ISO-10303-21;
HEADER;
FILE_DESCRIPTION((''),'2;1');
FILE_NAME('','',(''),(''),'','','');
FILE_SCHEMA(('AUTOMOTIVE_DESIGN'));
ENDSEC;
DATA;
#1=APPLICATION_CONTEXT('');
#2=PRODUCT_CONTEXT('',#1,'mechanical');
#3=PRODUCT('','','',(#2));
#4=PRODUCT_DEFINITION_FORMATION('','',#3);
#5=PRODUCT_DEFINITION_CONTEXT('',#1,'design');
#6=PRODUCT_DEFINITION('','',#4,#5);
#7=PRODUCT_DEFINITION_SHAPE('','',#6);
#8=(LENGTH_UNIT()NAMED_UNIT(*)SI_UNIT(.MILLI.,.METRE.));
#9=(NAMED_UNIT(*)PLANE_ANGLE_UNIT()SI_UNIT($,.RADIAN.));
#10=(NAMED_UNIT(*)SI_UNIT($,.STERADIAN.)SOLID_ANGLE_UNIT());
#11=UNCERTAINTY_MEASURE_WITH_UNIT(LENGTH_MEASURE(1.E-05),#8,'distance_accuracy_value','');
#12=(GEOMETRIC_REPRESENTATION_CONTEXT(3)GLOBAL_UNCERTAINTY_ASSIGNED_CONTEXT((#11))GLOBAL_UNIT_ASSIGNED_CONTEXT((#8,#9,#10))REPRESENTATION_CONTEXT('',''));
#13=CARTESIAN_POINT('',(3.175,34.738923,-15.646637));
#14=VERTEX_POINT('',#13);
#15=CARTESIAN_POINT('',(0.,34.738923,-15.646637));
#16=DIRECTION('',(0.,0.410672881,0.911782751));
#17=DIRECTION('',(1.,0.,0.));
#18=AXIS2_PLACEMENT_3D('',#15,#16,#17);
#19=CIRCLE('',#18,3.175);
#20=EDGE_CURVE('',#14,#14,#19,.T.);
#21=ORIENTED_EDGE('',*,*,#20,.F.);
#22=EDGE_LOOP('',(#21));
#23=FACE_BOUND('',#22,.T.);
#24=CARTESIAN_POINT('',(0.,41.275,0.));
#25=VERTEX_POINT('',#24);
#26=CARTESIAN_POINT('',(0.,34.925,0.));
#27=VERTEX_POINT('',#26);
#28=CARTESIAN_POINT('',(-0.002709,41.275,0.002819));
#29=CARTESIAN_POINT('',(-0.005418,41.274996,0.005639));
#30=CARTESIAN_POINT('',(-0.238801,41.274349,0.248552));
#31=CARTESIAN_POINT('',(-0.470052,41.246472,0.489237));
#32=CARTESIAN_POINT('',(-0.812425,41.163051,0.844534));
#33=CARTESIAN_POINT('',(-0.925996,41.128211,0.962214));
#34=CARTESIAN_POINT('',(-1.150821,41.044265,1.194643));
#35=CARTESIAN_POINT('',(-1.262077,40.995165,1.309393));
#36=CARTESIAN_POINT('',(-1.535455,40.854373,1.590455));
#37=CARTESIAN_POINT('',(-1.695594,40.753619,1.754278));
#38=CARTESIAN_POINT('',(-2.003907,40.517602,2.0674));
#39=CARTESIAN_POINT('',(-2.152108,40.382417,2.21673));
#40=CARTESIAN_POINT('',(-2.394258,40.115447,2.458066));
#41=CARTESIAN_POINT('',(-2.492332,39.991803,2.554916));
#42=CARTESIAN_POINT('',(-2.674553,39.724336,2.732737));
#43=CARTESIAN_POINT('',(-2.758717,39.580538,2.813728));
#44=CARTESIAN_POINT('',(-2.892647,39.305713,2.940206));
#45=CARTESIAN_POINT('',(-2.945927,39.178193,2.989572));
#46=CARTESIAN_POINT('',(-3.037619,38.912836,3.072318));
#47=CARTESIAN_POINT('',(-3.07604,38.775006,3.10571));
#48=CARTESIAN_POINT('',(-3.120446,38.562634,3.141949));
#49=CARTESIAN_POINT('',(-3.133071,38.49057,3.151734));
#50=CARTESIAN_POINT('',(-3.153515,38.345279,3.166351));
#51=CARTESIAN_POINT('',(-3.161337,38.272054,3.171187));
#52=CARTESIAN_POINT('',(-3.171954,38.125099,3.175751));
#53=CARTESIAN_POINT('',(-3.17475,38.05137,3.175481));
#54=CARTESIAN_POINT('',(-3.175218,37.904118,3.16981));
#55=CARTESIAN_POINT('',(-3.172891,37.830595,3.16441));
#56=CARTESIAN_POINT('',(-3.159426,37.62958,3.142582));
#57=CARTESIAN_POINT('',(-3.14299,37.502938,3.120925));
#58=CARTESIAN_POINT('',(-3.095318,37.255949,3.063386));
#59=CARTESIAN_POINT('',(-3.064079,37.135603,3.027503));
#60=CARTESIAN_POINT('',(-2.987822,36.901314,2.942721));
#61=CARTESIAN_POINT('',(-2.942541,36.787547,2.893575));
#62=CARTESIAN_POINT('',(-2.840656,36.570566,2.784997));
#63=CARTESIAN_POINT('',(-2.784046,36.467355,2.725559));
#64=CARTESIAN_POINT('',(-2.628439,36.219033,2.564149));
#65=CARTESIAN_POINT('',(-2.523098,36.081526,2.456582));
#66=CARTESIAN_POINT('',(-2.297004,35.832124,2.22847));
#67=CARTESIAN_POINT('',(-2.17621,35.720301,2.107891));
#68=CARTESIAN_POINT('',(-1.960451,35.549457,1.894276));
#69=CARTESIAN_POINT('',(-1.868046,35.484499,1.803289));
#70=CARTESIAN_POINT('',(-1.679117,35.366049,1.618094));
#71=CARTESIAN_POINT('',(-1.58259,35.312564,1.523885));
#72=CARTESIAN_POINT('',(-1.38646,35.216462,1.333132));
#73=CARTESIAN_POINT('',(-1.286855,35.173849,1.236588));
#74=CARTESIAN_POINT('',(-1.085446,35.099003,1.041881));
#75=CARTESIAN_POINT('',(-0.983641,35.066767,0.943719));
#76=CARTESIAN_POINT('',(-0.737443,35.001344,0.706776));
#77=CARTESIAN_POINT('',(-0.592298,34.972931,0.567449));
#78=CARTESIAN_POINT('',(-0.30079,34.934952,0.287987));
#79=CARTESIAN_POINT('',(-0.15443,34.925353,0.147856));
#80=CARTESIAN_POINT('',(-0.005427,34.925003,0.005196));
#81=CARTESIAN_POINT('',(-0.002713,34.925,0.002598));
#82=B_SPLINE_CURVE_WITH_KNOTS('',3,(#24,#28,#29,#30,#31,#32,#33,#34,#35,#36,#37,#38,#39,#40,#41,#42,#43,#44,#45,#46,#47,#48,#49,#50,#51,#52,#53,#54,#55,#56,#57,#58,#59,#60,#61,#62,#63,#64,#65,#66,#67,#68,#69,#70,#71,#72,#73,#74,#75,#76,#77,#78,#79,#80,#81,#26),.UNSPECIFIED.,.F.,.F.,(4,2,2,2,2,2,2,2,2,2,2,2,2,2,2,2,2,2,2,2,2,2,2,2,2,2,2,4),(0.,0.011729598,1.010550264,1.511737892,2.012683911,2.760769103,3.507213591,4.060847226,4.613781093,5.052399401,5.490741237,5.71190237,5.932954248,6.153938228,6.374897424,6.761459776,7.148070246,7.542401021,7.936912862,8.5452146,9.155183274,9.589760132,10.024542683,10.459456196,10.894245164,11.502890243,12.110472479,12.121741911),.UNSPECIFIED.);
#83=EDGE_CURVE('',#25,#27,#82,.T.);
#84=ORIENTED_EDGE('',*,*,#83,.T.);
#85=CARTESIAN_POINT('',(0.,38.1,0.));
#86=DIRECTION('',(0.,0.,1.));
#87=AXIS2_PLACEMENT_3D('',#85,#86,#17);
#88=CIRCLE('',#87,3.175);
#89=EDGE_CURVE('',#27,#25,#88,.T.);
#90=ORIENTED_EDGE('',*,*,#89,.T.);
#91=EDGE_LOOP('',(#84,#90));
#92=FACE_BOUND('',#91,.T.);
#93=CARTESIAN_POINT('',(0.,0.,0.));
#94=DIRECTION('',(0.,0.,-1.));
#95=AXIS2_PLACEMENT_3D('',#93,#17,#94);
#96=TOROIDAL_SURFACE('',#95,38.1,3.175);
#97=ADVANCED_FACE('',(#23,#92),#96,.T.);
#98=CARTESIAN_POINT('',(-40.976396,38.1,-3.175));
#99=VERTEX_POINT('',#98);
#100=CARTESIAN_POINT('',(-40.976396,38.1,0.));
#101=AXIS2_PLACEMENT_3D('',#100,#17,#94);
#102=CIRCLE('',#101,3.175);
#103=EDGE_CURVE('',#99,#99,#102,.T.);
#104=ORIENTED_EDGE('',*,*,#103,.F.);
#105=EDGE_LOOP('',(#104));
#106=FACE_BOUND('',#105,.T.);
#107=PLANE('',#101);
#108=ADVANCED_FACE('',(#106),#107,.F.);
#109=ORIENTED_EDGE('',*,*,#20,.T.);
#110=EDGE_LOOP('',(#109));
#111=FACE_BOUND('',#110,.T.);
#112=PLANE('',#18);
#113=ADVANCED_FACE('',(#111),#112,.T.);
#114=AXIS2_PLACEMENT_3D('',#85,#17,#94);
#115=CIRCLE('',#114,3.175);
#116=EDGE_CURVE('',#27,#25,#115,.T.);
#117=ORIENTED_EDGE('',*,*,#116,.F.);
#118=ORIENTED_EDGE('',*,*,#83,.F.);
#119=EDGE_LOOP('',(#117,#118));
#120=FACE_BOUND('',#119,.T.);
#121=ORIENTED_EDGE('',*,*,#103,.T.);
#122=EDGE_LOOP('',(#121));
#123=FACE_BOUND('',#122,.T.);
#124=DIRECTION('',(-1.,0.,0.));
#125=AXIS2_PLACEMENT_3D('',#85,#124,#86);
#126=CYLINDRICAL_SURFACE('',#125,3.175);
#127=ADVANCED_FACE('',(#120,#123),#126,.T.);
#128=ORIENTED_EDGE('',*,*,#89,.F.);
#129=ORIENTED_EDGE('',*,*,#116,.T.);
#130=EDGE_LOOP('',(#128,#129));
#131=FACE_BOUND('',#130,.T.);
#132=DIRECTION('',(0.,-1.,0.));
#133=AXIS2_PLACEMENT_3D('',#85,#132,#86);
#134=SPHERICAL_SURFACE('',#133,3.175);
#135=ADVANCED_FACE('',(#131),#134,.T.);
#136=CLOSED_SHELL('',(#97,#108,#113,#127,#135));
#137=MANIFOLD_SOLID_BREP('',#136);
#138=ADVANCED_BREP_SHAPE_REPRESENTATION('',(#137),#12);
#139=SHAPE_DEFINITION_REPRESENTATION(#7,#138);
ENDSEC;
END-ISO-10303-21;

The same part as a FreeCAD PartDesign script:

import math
import FreeCAD as App
import Part
import Sketcher

V = App.Vector
Q = App.Units.Quantity

doc = App.newDocument("Part")
body = doc.addObject("PartDesign::Body", "Body")

# Sketch on XY plane
sketch1 = doc.addObject("Sketcher::SketchObject", "Sketch")
body.addObject(sketch1)
sketch1.AttachmentSupport = (doc.XY_Plane, [""])
sketch1.MapMode = "FlatFace"
sketch1.addGeometry(Part.Circle(V(0, 38.1, 0), V(0, 0, 1), 3.175), False)
sketch1.addConstraint(Sketcher.Constraint("PointOnObject", 0, 3, -2))
sketch1.addConstraint(Sketcher.Constraint("Diameter", 0, Q("0.25 in")))
sketch1.addConstraint(Sketcher.Constraint("DistanceY", -1, 1, 0, 3, Q("1.5 in")))

# Sketch on YZ plane
sketch2 = doc.addObject("Sketcher::SketchObject", "Sketch001")
body.addObject(sketch2)
sketch2.AttachmentSupport = (doc.YZ_Plane, [""])
sketch2.MapMode = "FlatFace"
sketch2.addGeometry(Part.ArcOfCircle(Part.Circle(V(0, 0, 0), V(0, 0, 1), 38.1), math.radians(0), math.radians(335.752889)), False)
sketch2.addConstraint(Sketcher.Constraint("Coincident", 0, 3, -1, 1))
sketch2.addConstraint(Sketcher.Constraint("PointOnObject", 0, 1, -1))
sketch2.addConstraint(Sketcher.Constraint("Radius", 0, Q("1.5 in")))
sketch2.addConstraint(Sketcher.Constraint("DistanceX", -1, 1, 0, 2, 34.738923))
doc.recompute()

additivepipe = doc.addObject("PartDesign::AdditivePipe", "AdditivePipe")
body.addObject(additivepipe)
additivepipe.Profile = sketch1
additivepipe.Spine = (sketch2, ["Edge1"])

# Sketch on YZ plane
sketch3 = doc.addObject("Sketcher::SketchObject", "Sketch002")
body.addObject(sketch3)
sketch3.AttachmentSupport = (doc.YZ_Plane, [""])
sketch3.MapMode = "FlatFace"
sketch3.addGeometry(Part.Circle(V(38.1, 0, 0), V(0, 0, 1), 3.175), False)
sketch3.addConstraint(Sketcher.Constraint("PointOnObject", 0, 3, -1))
sketch3.addConstraint(Sketcher.Constraint("Diameter", 0, Q("0.25 in")))
sketch3.addConstraint(Sketcher.Constraint("DistanceX", -1, 1, 0, 3, Q("1.5 in")))

# Sketch on XY plane
sketch4 = doc.addObject("Sketcher::SketchObject", "Sketch003")
body.addObject(sketch4)
sketch4.AttachmentSupport = (doc.XY_Plane, [""])
sketch4.MapMode = "FlatFace"
sketch4.addGeometry(Part.LineSegment(V(0, 38.1, 0), V(-40.976396, 38.1, 0)), False)
sketch4.addConstraint(Sketcher.Constraint("Horizontal", 0))
sketch4.addConstraint(Sketcher.Constraint("PointOnObject", 0, 1, -2))
sketch4.addConstraint(Sketcher.Constraint("DistanceY", -1, 1, 0, 1, Q("1.5 in")))
sketch4.addConstraint(Sketcher.Constraint("DistanceX", 0, 2, 0, 1, 40.976396))
doc.recompute()

additivepipe2 = doc.addObject("PartDesign::AdditivePipe", "AdditivePipe001")
body.addObject(additivepipe2)
additivepipe2.Profile = sketch3
additivepipe2.Spine = (sketch4, ["Edge1"])

# Sketch on YZ plane
sketch5 = doc.addObject("Sketcher::SketchObject", "Sketch004")
body.addObject(sketch5)
sketch5.AttachmentSupport = (doc.YZ_Plane, [""])
sketch5.MapMode = "FlatFace"
sketch5.addGeometry(Part.LineSegment(V(41.275, 0, 0), V(34.925, 0, 0)), False)
sketch5.addGeometry(Part.ArcOfCircle(Part.Circle(V(38.1, 0, 0), V(0, 0, 1), 3.175), math.radians(180), math.radians(360)), False)
sketch5.addConstraint(Sketcher.Constraint("Coincident", 0, 1, 1, 2))
sketch5.addConstraint(Sketcher.Constraint("Coincident", 1, 1, 0, 2))
sketch5.addConstraint(Sketcher.Constraint("Horizontal", 0))
sketch5.addConstraint(Sketcher.Constraint("PointOnObject", 1, 3, -1))
sketch5.addConstraint(Sketcher.Constraint("PointOnObject", 0, 1, -1))
sketch5.addConstraint(Sketcher.Constraint("Radius", 1, Q("0.125 in")))
sketch5.addConstraint(Sketcher.Constraint("DistanceX", -1, 1, 1, 3, Q("1.5 in")))
revolution = doc.addObject("PartDesign::Revolution", "Revolution")
body.addObject(revolution)
revolution.Profile = sketch5
revolution.ReferenceAxis = (sketch5, ["H_Axis"])
revolution.Angle = 360

doc.recompute()
